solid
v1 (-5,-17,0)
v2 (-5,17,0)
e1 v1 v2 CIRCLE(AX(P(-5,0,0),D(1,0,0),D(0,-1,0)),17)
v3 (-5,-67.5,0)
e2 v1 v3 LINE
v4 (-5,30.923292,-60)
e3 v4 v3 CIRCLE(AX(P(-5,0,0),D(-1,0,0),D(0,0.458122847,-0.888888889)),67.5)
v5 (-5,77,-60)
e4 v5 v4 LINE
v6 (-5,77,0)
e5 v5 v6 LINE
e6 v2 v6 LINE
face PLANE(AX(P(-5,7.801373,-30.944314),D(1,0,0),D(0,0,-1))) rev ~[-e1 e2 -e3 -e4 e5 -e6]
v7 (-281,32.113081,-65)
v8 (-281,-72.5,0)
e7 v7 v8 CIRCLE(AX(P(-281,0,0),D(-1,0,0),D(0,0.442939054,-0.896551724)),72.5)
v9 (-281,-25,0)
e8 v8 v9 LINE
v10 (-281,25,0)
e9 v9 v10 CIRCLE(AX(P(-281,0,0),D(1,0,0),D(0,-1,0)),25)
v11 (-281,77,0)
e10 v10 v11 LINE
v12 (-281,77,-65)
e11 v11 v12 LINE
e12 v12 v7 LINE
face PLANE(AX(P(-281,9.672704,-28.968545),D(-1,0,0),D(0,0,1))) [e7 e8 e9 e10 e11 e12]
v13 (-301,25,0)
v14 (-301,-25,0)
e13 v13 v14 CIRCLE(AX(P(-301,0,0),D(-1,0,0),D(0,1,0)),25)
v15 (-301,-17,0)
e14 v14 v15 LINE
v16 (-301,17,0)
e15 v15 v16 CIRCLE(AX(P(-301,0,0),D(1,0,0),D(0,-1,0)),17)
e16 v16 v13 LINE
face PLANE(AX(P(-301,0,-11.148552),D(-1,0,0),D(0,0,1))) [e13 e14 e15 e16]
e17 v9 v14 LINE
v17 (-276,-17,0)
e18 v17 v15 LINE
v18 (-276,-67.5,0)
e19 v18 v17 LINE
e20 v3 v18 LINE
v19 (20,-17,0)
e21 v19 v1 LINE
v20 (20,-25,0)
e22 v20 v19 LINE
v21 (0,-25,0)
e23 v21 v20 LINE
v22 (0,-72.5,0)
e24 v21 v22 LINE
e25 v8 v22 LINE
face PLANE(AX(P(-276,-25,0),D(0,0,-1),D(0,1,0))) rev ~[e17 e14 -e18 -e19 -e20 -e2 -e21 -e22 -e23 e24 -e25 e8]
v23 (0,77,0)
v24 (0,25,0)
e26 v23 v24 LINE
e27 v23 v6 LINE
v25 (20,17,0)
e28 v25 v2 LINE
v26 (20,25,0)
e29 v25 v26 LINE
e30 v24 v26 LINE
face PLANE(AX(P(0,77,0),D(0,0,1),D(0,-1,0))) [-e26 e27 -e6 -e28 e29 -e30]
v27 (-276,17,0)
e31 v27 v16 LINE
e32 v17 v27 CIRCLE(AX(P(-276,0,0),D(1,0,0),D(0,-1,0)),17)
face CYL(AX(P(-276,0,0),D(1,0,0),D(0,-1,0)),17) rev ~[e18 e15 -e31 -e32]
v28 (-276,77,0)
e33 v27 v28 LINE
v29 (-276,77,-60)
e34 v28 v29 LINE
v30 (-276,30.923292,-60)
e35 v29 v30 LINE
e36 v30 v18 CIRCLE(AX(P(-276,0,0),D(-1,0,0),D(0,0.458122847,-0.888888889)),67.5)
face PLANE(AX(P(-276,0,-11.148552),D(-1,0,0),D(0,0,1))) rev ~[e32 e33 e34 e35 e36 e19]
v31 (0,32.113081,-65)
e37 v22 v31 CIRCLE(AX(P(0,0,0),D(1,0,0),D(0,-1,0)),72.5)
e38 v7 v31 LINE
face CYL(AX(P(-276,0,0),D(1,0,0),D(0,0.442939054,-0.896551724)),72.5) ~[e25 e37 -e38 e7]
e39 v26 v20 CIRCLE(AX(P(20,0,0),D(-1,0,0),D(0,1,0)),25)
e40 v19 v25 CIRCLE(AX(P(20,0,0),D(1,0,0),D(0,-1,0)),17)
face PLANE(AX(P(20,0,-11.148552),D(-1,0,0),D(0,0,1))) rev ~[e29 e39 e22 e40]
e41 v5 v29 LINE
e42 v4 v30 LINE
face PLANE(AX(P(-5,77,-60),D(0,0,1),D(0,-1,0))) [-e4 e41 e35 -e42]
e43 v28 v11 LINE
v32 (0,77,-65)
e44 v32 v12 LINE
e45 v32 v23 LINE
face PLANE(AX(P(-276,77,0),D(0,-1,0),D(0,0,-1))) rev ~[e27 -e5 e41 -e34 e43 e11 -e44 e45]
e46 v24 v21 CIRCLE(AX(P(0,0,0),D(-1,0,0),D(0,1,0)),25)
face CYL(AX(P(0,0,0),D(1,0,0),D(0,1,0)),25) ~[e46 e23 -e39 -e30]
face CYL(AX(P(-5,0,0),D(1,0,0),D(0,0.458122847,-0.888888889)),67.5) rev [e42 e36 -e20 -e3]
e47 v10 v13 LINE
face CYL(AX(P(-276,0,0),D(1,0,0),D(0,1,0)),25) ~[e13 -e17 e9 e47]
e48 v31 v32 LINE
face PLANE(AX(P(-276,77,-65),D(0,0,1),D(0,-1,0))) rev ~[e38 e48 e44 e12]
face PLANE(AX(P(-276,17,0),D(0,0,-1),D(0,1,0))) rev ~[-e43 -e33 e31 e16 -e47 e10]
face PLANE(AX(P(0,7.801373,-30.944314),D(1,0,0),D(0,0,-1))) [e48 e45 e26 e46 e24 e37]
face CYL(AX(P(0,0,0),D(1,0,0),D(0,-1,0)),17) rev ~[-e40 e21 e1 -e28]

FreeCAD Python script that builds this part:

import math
import FreeCAD as App
import Part
import Sketcher
from FreeCAD import Vector
Q = App.Units.Quantity

doc = App.newDocument("Part")
body = doc.addObject("PartDesign::Body", "Body")

# Sketch on YZ plane
sketch1 = body.newObject("Sketcher::SketchObject", "Sketch")
sketch1.AttachmentSupport = (doc.getObject("YZ_Plane"), [""])
sketch1.MapMode = "FlatFace"
sketch1.addGeometry(Part.LineSegment(Vector(-17, 0, 0), Vector(-25, 0, 0)), False)
sketch1.addGeometry(Part.ArcOfCircle(Part.Circle(Vector(0, 0, 0), Vector(0, 0, 1), 25), math.radians(180), math.radians(360)), False)
sketch1.addGeometry(Part.LineSegment(Vector(25, 0, 0), Vector(17, 0, 0)), False)
sketch1.addGeometry(Part.ArcOfCircle(Part.Circle(Vector(0, 0, 0), Vector(0, 0, 1), 17), math.radians(180), math.radians(360)), False)
sketch1.addConstraint(Sketcher.Constraint("Coincident", 0, 2, 1, 1))
sketch1.addConstraint(Sketcher.Constraint("Coincident", 1, 2, 2, 1))
sketch1.addConstraint(Sketcher.Constraint("Coincident", 2, 2, 3, 2))
sketch1.addConstraint(Sketcher.Constraint("Coincident", 3, 1, 0, 1))
sketch1.addConstraint(Sketcher.Constraint("Horizontal", 0))
sketch1.addConstraint(Sketcher.Constraint("Horizontal", 2))
sketch1.addConstraint(Sketcher.Constraint("Coincident", 1, 3, -1, 1))
sketch1.addConstraint(Sketcher.Constraint("Coincident", 3, 3, -1, 1))
sketch1.addConstraint(Sketcher.Constraint("PointOnObject", 0, 2, -1))
sketch1.addConstraint(Sketcher.Constraint("PointOnObject", 1, 2, -1))
sketch1.addConstraint(Sketcher.Constraint("Radius", 1, Q("25 mm")))
sketch1.addConstraint(Sketcher.Constraint("Radius", 3, Q("17 mm")))
pad1 = body.newObject("PartDesign::Pad", "Pad")
pad1.Profile = sketch1
pad1.Type = "TwoLengths"
pad1.Length = 20
pad1.Length2 = 5
body2 = doc.addObject("PartDesign::Body", "Body001")

# Sketch on YZ plane
sketch2 = body2.newObject("Sketcher::SketchObject", "Sketch001")
sketch2.AttachmentSupport = (doc.getObject("YZ_Plane001"), [""])
sketch2.MapMode = "FlatFace"
sketch2.addGeometry(Part.ArcOfCircle(Part.Circle(Vector(0, 0, 0), Vector(0, 0, 1), 25), math.radians(180), math.radians(360)), False)
sketch2.addGeometry(Part.LineSegment(Vector(-25, 0, 0), Vector(-72, 0, 0)), False)
sketch2.addGeometry(Part.ArcOfCircle(Part.Circle(Vector(0, 0, 0), Vector(0, 0, 1), 72), math.radians(180), math.radians(296)), False)
sketch2.addGeometry(Part.LineSegment(Vector(32, -65, 0), Vector(77, -65, 0)), False)
sketch2.addGeometry(Part.LineSegment(Vector(77, -65, 0), Vector(77, 0, 0)), False)
sketch2.addGeometry(Part.LineSegment(Vector(77, 0, 0), Vector(25, 0, 0)), False)
sketch2.addConstraint(Sketcher.Constraint("Coincident", 0, 1, 1, 1))
sketch2.addConstraint(Sketcher.Constraint("Coincident", 1, 2, 2, 1))
sketch2.addConstraint(Sketcher.Constraint("Coincident", 2, 2, 3, 1))
sketch2.addConstraint(Sketcher.Constraint("Coincident", 3, 2, 4, 1))
sketch2.addConstraint(Sketcher.Constraint("Coincident", 4, 2, 5, 1))
sketch2.addConstraint(Sketcher.Constraint("Coincident", 5, 2, 0, 2))
sketch2.addConstraint(Sketcher.Constraint("Horizontal", 1))
sketch2.addConstraint(Sketcher.Constraint("Horizontal", 3))
sketch2.addConstraint(Sketcher.Constraint("Vertical", 4))
sketch2.addConstraint(Sketcher.Constraint("Horizontal", 5))
sketch2.addConstraint(Sketcher.Constraint("Coincident", 0, 3, -1, 1))
sketch2.addConstraint(Sketcher.Constraint("Coincident", 2, 3, -1, 1))
sketch2.addConstraint(Sketcher.Constraint("PointOnObject", 0, 1, -1))
sketch2.addConstraint(Sketcher.Constraint("PointOnObject", 4, 2, -1))
sketch2.addConstraint(Sketcher.Constraint("Radius", 0, Q("25 mm")))
sketch2.addConstraint(Sketcher.Constraint("Radius", 2, Q("72.5 mm")))
sketch2.addConstraint(Sketcher.Constraint("DistanceX", 5, 2, 5, 1, Q("52 mm")))
sketch2.addConstraint(Sketcher.Constraint("DistanceY", 4, 1, 4, 2, Q("65 mm")))
pad2 = body2.newObject("PartDesign::Pad", "Pad001")
pad2.Profile = sketch2
pad2.Length = 5
pad2.Reversed = True
doc.recompute()

boolean = body.newObject("PartDesign::Boolean", "Boolean")
boolean.Type = "Fuse"
boolean.addObjects([body2])

# Sketch on YZ plane
sketch3 = body.newObject("Sketcher::SketchObject", "Sketch002")
sketch3.AttachmentSupport = (doc.getObject("YZ_Plane"), [""])
sketch3.MapMode = "FlatFace"
sketch3.AttachmentOffset = App.Placement(Vector(0, 0, -5), App.Rotation())
sketch3.addGeometry(Part.LineSegment(Vector(31, -60, 0), Vector(77, -60, 0)), False)
sketch3.addGeometry(Part.LineSegment(Vector(77, -60, 0), Vector(77, -65, 0)), False)
sketch3.addGeometry(Part.LineSegment(Vector(77, -65, 0), Vector(32, -65, 0)), False)
sketch3.addGeometry(Part.ArcOfCircle(Part.Circle(Vector(0, 0, 0), Vector(0, 0, 1), 72), math.radians(180), math.radians(296)), False)
sketch3.addGeometry(Part.LineSegment(Vector(-72, 0, 0), Vector(-68, 0, 0)), False)
sketch3.addGeometry(Part.ArcOfCircle(Part.Circle(Vector(0, 0, 0), Vector(0, 0, 1), 68), math.radians(180), math.radians(297)), False)
sketch3.addConstraint(Sketcher.Constraint("Coincident", 0, 2, 1, 1))
sketch3.addConstraint(Sketcher.Constraint("Coincident", 1, 2, 2, 1))
sketch3.addConstraint(Sketcher.Constraint("Coincident", 2, 2, 3, 2))
sketch3.addConstraint(Sketcher.Constraint("Coincident", 3, 1, 4, 1))
sketch3.addConstraint(Sketcher.Constraint("Coincident", 4, 2, 5, 1))
sketch3.addConstraint(Sketcher.Constraint("Coincident", 5, 2, 0, 1))
sketch3.addConstraint(Sketcher.Constraint("Horizontal", 0))
sketch3.addConstraint(Sketcher.Constraint("Vertical", 1))
sketch3.addConstraint(Sketcher.Constraint("Horizontal", 2))
sketch3.addConstraint(Sketcher.Constraint("Horizontal", 4))
sketch3.addConstraint(Sketcher.Constraint("Coincident", 3, 3, -1, 1))
sketch3.addConstraint(Sketcher.Constraint("Coincident", 5, 3, -1, 1))
sketch3.addConstraint(Sketcher.Constraint("PointOnObject", 3, 1, -1))
sketch3.addConstraint(Sketcher.Constraint("Equal", 4, 1))
sketch3.addConstraint(Sketcher.Constraint("Radius", 3, Q("72.5 mm")))
sketch3.addConstraint(Sketcher.Constraint("Radius", 5, Q("67.5 mm")))
sketch3.addConstraint(Sketcher.Constraint("DistanceX", -1, 1, 0, 2, Q("77 mm")))
sketch3.addConstraint(Sketcher.Constraint("DistanceY", 0, 2, -1, 1, Q("60 mm")))
pad3 = body.newObject("PartDesign::Pad", "Pad002")
pad3.Profile = sketch3
pad3.Length = 271
pad3.Reversed = True

# Sketch on YZ plane
sketch4 = body.newObject("Sketcher::SketchObject", "Sketch003")
sketch4.AttachmentSupport = (doc.getObject("YZ_Plane"), [""])
sketch4.MapMode = "FlatFace"
sketch4.AttachmentOffset = App.Placement(Vector(0, 0, -276), App.Rotation())
sketch4.addGeometry(Part.ArcOfCircle(Part.Circle(Vector(0, 0, 0), Vector(0, 0, 1), 25), math.radians(180), math.radians(360)), False)
sketch4.addGeometry(Part.LineSegment(Vector(25, 0, 0), Vector(77, 0, 0)), False)
sketch4.addGeometry(Part.LineSegment(Vector(77, 0, 0), Vector(77, -65, 0)), False)
sketch4.addGeometry(Part.LineSegment(Vector(77, -65, 0), Vector(32, -65, 0)), False)
sketch4.addGeometry(Part.ArcOfCircle(Part.Circle(Vector(0, 0, 0), Vector(0, 0, 1), 72), math.radians(180), math.radians(296)), False)
sketch4.addGeometry(Part.LineSegment(Vector(-72, 0, 0), Vector(-25, 0, 0)), False)
sketch4.addConstraint(Sketcher.Constraint("Coincident", 0, 2, 1, 1))
sketch4.addConstraint(Sketcher.Constraint("Coincident", 1, 2, 2, 1))
sketch4.addConstraint(Sketcher.Constraint("Coincident", 2, 2, 3, 1))
sketch4.addConstraint(Sketcher.Constraint("Coincident", 3, 2, 4, 2))
sketch4.addConstraint(Sketcher.Constraint("Coincident", 4, 1, 5, 1))
sketch4.addConstraint(Sketcher.Constraint("Coincident", 5, 2, 0, 1))
sketch4.addConstraint(Sketcher.Constraint("Horizontal", 1))
sketch4.addConstraint(Sketcher.Constraint("Vertical", 2))
sketch4.addConstraint(Sketcher.Constraint("Horizontal", 3))
sketch4.addConstraint(Sketcher.Constraint("Horizontal", 5))
sketch4.addConstraint(Sketcher.Constraint("Coincident", 0, 3, -1, 1))
sketch4.addConstraint(Sketcher.Constraint("Coincident", 4, 3, -1, 1))
sketch4.addConstraint(Sketcher.Constraint("PointOnObject", 0, 2, -1))
sketch4.addConstraint(Sketcher.Constraint("PointOnObject", 4, 1, -1))
sketch4.addConstraint(Sketcher.Constraint("Radius", 0, Q("25 mm")))
sketch4.addConstraint(Sketcher.Constraint("Radius", 4, Q("72.5 mm")))
sketch4.addConstraint(Sketcher.Constraint("DistanceX", 1, 1, 1, 2, Q("52 mm")))
sketch4.addConstraint(Sketcher.Constraint("DistanceY", 2, 2, 2, 1, Q("65 mm")))
pad4 = body.newObject("PartDesign::Pad", "Pad003")
pad4.Profile = sketch4
pad4.Length = 5
pad4.Reversed = True

# Sketch on YZ plane
sketch5 = body.newObject("Sketcher::SketchObject", "Sketch004")
sketch5.AttachmentSupport = (doc.getObject("YZ_Plane"), [""])
sketch5.MapMode = "FlatFace"
sketch5.AttachmentOffset = App.Placement(Vector(0, 0, -276), App.Rotation())
sketch5.addGeometry(Part.ArcOfCircle(Part.Circle(Vector(0, 0, 0), Vector(0, 0, 1), 25), math.radians(180), math.radians(360)), False)
sketch5.addGeometry(Part.LineSegment(Vector(-25, 0, 0), Vector(-17, 0, 0)), False)
sketch5.addGeometry(Part.ArcOfCircle(Part.Circle(Vector(0, 0, 0), Vector(0, 0, 1), 17), math.radians(180), math.radians(360)), False)
sketch5.addGeometry(Part.LineSegment(Vector(17, 0, 0), Vector(25, 0, 0)), False)
sketch5.addConstraint(Sketcher.Constraint("Coincident", 0, 1, 1, 1))
sketch5.addConstraint(Sketcher.Constraint("Coincident", 1, 2, 2, 1))
sketch5.addConstraint(Sketcher.Constraint("Coincident", 2, 2, 3, 1))
sketch5.addConstraint(Sketcher.Constraint("Coincident", 3, 2, 0, 2))
sketch5.addConstraint(Sketcher.Constraint("Horizontal", 1))
sketch5.addConstraint(Sketcher.Constraint("Horizontal", 3))
sketch5.addConstraint(Sketcher.Constraint("Coincident", 0, 3, -1, 1))
sketch5.addConstraint(Sketcher.Constraint("Coincident", 2, 3, -1, 1))
sketch5.addConstraint(Sketcher.Constraint("PointOnObject", 0, 1, -1))
sketch5.addConstraint(Sketcher.Constraint("PointOnObject", 2, 2, -1))
sketch5.addConstraint(Sketcher.Constraint("Radius", 0, Q("25 mm")))
sketch5.addConstraint(Sketcher.Constraint("Radius", 2, Q("17 mm")))
pad5 = body.newObject("PartDesign::Pad", "Pad004")
pad5.Profile = sketch5
pad5.Length = 25
pad5.Reversed = True

doc.recompute()
